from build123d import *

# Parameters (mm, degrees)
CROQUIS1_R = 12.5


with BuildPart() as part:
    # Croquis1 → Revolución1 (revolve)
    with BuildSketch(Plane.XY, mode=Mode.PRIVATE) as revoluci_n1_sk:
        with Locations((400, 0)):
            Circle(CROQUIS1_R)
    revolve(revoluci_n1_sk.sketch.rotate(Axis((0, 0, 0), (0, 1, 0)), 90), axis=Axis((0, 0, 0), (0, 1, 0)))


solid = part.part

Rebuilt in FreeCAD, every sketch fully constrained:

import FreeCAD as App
import Part
import Sketcher
Q = App.Units.Quantity

doc = App.newDocument("Part")
body = doc.addObject("PartDesign::Body", "Body")

sketch1 = doc.addObject("Sketcher::SketchObject", "Sketch")
body.addObject(sketch1)
sketch1.AttachmentSupport = (doc.XY_Plane, [""])
sketch1.MapMode = "FlatFace"
sketch1.addGeometry(Part.Circle(App.Vector(400, 0, 0), App.Vector(0, 0, 1), 12), False)
sketch1.addConstraint([
    Sketcher.Constraint("PointOnObject", 0, 3, -1),
    Sketcher.Constraint("Diameter", 0, Q("25 mm")),
    Sketcher.Constraint("DistanceX", -1, 1, 0, 3, Q("400 mm")),
])
revolution = doc.addObject("PartDesign::Revolution", "Revolution")
body.addObject(revolution)
revolution.Profile = sketch1
revolution.ReferenceAxis = (sketch1, ["V_Axis"])
revolution.Angle = 360

doc.recompute()
